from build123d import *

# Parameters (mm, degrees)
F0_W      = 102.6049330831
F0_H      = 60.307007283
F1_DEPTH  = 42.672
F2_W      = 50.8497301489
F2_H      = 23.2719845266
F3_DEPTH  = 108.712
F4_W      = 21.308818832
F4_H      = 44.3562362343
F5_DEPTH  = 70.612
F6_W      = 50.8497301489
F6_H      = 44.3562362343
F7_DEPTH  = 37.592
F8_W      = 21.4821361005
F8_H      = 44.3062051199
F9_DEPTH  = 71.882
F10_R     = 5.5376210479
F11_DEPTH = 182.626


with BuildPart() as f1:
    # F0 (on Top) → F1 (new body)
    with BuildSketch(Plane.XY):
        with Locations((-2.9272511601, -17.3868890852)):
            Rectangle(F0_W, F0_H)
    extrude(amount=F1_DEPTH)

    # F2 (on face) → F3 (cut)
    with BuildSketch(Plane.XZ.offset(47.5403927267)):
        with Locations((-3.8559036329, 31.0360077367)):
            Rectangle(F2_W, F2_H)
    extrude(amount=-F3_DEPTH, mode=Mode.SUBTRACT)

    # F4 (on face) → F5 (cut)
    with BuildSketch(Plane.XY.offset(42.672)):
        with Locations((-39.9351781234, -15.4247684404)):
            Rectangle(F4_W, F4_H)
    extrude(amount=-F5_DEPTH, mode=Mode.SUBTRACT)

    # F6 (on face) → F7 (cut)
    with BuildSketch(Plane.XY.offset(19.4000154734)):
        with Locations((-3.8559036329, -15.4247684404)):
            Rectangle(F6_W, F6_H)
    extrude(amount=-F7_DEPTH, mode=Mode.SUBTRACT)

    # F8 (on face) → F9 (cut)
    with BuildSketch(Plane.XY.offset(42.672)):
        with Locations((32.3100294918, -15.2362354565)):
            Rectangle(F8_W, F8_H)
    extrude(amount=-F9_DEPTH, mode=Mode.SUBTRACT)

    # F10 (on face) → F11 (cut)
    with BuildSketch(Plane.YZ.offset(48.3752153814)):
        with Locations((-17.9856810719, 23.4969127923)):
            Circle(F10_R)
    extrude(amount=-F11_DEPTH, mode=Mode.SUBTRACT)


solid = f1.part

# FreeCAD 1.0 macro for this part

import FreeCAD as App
import Part
import Sketcher

V = App.Vector
Q = App.Units.Quantity


def add_polygon(sketch, points):
    """Adds a closed chain of lines whose ends are joined by coincident constraints."""
    first, n = sketch.GeometryCount, len(points)
    for a, b in zip(points, points[1:] + points[:1]):
        sketch.addGeometry(Part.LineSegment(App.Vector(*a, 0), App.Vector(*b, 0)), False)
    for i in range(n):
        sketch.addConstraint(Sketcher.Constraint("Coincident", first + i, 2, first + (i + 1) % n, 1))

doc = App.newDocument("Part")
params = doc.addObject("Spreadsheet::Sheet", "Params")
for row, (alias, value) in enumerate([
    ("pad1_length", "1.68 in"),
    ("pocket1_length", "4.28 in"),
    ("pocket2_length", "2.78 in"),
    ("pocket3_length", "1.48 in"),
    ("pocket4_length", "2.83 in"),
    ("pocket5_length", "7.19 in"),
], start=1):
    params.set(f"A{row}", alias)
    params.set(f"B{row}", "=" + value)
    params.setAlias(f"B{row}", alias)

body = doc.addObject("PartDesign::Body", "Body")

# Sketch on XY plane
sketch1 = doc.addObject("Sketcher::SketchObject", "Sketch")
body.addObject(sketch1)
sketch1.AttachmentSupport = (doc.XY_Plane, [""])
sketch1.MapMode = "FlatFace"
add_polygon(sketch1, [(-54.229718, 12.766615), (-54.229718, -47.540393), (48.375215, -47.540393), (48.375215, 12.766615)])  # lines 0-3
sketch1.addConstraint([
    Sketcher.Constraint("Vertical", 0),
    Sketcher.Constraint("Horizontal", 1),
    Sketcher.Constraint("Vertical", 2),
    Sketcher.Constraint("Horizontal", 3),
    Sketcher.Constraint("DistanceX", 1, 1, 1, 2, Q("102.604933 mm")),
    Sketcher.Constraint("DistanceY", 0, 2, 0, 1, Q("60.307007 mm")),
    Sketcher.Constraint("DistanceX", 0, 2, -1, 1, Q("54.229718 mm")),
    Sketcher.Constraint("DistanceY", 0, 2, -1, 1, Q("47.540393 mm")),
])
pad1 = doc.addObject("PartDesign::Pad", "Pad")
body.addObject(pad1)
pad1.Profile = sketch1
pad1.setExpression("Length", "Params.pad1_length")

# Sketch on XZ plane
sketch2 = doc.addObject("Sketcher::SketchObject", "Sketch001")
body.addObject(sketch2)
sketch2.AttachmentSupport = (doc.XZ_Plane, [""])
sketch2.MapMode = "FlatFace"
sketch2.AttachmentOffset = App.Placement(V(0, 0, 47.540393), App.Rotation())
add_polygon(sketch2, [(-29.280769, 42.672), (-29.280769, 19.400015), (21.568961, 19.400015), (21.568961, 42.672)])  # lines 0-3
sketch2.addConstraint([
    Sketcher.Constraint("Vertical", 0),
    Sketcher.Constraint("Horizontal", 1),
    Sketcher.Constraint("Vertical", 2),
    Sketcher.Constraint("Horizontal", 3),
    Sketcher.Constraint("DistanceY", -1, 1, 2, 2, Q("1.68 in")),
    Sketcher.Constraint("DistanceX", 1, 1, 1, 2, Q("50.84973 mm")),
    Sketcher.Constraint("DistanceY", 0, 2, 0, 1, Q("23.271985 mm")),
    Sketcher.Constraint("DistanceX", 0, 2, -1, 1, Q("29.280769 mm")),
])
pocket1 = doc.addObject("PartDesign::Pocket", "Pocket")
body.addObject(pocket1)
pocket1.Profile = sketch2
pocket1.setExpression("Length", "Params.pocket1_length")

# Sketch on XY plane
sketch3 = doc.addObject("Sketcher::SketchObject", "Sketch002")
body.addObject(sketch3)
sketch3.AttachmentSupport = (doc.XY_Plane, [""])
sketch3.MapMode = "FlatFace"
sketch3.AttachmentOffset = App.Placement(V(0, 0, 1.68 * 25.4), App.Rotation())
add_polygon(sketch3, [(-50.589588, 6.75335), (-50.589588, -37.602887), (-29.280769, -37.602887), (-29.280769, 6.75335)])  # lines 0-3
sketch3.addConstraint([
    Sketcher.Constraint("Vertical", 0),
    Sketcher.Constraint("Horizontal", 1),
    Sketcher.Constraint("Vertical", 2),
    Sketcher.Constraint("Horizontal", 3),
    Sketcher.Constraint("DistanceX", 1, 1, 1, 2, Q("21.308819 mm")),
    Sketcher.Constraint("DistanceY", 0, 2, 0, 1, Q("44.356236 mm")),
    Sketcher.Constraint("DistanceX", 1, 2, -1, 1, Q("29.280769 mm")),
    Sketcher.Constraint("DistanceY", -1, 1, 2, 2, Q("6.75335 mm")),
])
pocket2 = doc.addObject("PartDesign::Pocket", "Pocket001")
body.addObject(pocket2)
pocket2.Profile = sketch3
pocket2.setExpression("Length", "Params.pocket2_length")

# Sketch on XY plane
sketch4 = doc.addObject("Sketcher::SketchObject", "Sketch003")
body.addObject(sketch4)
sketch4.AttachmentSupport = (doc.XY_Plane, [""])
sketch4.MapMode = "FlatFace"
sketch4.AttachmentOffset = App.Placement(V(0, 0, 19.400015), App.Rotation())
add_polygon(sketch4, [(-29.280769, 6.75335), (-29.280769, -37.602887), (21.568961, -37.602887), (21.568961, 6.75335)])  # lines 0-3
sketch4.addConstraint([
    Sketcher.Constraint("Vertical", 0),
    Sketcher.Constraint("Horizontal", 1),
    Sketcher.Constraint("Vertical", 2),
    Sketcher.Constraint("Horizontal", 3),
    Sketcher.Constraint("DistanceX", 1, 1, 1, 2, Q("50.84973 mm")),
    Sketcher.Constraint("DistanceY", 0, 2, 0, 1, Q("44.356236 mm")),
    Sketcher.Constraint("DistanceX", 0, 2, -1, 1, Q("29.280769 mm")),
    Sketcher.Constraint("DistanceY", -1, 1, 2, 2, Q("6.75335 mm")),
])
pocket3 = doc.addObject("PartDesign::Pocket", "Pocket002")
body.addObject(pocket3)
pocket3.Profile = sketch4
pocket3.setExpression("Length", "Params.pocket3_length")

# Sketch on XY plane
sketch5 = doc.addObject("Sketcher::SketchObject", "Sketch004")
body.addObject(sketch5)
sketch5.AttachmentSupport = (doc.XY_Plane, [""])
sketch5.MapMode = "FlatFace"
sketch5.AttachmentOffset = App.Placement(V(0, 0, 1.68 * 25.4), App.Rotation())
add_polygon(sketch5, [(21.568961, 6.916867), (21.568961, -37.389338), (43.051098, -37.389338), (43.051098, 6.916867)])  # lines 0-3
sketch5.addConstraint([
    Sketcher.Constraint("Vertical", 0),
    Sketcher.Constraint("Horizontal", 1),
    Sketcher.Constraint("Vertical", 2),
    Sketcher.Constraint("Horizontal", 3),
    Sketcher.Constraint("DistanceX", 1, 1, 1, 2, Q("21.482136 mm")),
    Sketcher.Constraint("DistanceY", 0, 2, 0, 1, Q("44.306205 mm")),
    Sketcher.Constraint("DistanceX", -1, 1, 0, 2, Q("21.568961 mm")),
    Sketcher.Constraint("DistanceY", 0, 2, -1, 1, Q("37.389338 mm")),
])
pocket4 = doc.addObject("PartDesign::Pocket", "Pocket003")
body.addObject(pocket4)
pocket4.Profile = sketch5
pocket4.setExpression("Length", "Params.pocket4_length")

# Sketch on YZ plane
sketch6 = doc.addObject("Sketcher::SketchObject", "Sketch005")
body.addObject(sketch6)
sketch6.AttachmentSupport = (doc.YZ_Plane, [""])
sketch6.MapMode = "FlatFace"
sketch6.AttachmentOffset = App.Placement(V(0, 0, 48.375215), App.Rotation())
sketch6.addGeometry(Part.Circle(V(-17.985681, 23.496913, 0), V(0, 0, 1), 5.537621), False)
sketch6.addConstraint([
    Sketcher.Constraint("Diameter", 0, Q("11.075242 mm")),
    Sketcher.Constraint("DistanceX", 0, 3, -1, 1, Q("17.985681 mm")),
    Sketcher.Constraint("DistanceY", -1, 1, 0, 3, Q("23.496913 mm")),
])
pocket5 = doc.addObject("PartDesign::Pocket", "Pocket004")
body.addObject(pocket5)
pocket5.Profile = sketch6
pocket5.setExpression("Length", "Params.pocket5_length")

doc.recompute()
